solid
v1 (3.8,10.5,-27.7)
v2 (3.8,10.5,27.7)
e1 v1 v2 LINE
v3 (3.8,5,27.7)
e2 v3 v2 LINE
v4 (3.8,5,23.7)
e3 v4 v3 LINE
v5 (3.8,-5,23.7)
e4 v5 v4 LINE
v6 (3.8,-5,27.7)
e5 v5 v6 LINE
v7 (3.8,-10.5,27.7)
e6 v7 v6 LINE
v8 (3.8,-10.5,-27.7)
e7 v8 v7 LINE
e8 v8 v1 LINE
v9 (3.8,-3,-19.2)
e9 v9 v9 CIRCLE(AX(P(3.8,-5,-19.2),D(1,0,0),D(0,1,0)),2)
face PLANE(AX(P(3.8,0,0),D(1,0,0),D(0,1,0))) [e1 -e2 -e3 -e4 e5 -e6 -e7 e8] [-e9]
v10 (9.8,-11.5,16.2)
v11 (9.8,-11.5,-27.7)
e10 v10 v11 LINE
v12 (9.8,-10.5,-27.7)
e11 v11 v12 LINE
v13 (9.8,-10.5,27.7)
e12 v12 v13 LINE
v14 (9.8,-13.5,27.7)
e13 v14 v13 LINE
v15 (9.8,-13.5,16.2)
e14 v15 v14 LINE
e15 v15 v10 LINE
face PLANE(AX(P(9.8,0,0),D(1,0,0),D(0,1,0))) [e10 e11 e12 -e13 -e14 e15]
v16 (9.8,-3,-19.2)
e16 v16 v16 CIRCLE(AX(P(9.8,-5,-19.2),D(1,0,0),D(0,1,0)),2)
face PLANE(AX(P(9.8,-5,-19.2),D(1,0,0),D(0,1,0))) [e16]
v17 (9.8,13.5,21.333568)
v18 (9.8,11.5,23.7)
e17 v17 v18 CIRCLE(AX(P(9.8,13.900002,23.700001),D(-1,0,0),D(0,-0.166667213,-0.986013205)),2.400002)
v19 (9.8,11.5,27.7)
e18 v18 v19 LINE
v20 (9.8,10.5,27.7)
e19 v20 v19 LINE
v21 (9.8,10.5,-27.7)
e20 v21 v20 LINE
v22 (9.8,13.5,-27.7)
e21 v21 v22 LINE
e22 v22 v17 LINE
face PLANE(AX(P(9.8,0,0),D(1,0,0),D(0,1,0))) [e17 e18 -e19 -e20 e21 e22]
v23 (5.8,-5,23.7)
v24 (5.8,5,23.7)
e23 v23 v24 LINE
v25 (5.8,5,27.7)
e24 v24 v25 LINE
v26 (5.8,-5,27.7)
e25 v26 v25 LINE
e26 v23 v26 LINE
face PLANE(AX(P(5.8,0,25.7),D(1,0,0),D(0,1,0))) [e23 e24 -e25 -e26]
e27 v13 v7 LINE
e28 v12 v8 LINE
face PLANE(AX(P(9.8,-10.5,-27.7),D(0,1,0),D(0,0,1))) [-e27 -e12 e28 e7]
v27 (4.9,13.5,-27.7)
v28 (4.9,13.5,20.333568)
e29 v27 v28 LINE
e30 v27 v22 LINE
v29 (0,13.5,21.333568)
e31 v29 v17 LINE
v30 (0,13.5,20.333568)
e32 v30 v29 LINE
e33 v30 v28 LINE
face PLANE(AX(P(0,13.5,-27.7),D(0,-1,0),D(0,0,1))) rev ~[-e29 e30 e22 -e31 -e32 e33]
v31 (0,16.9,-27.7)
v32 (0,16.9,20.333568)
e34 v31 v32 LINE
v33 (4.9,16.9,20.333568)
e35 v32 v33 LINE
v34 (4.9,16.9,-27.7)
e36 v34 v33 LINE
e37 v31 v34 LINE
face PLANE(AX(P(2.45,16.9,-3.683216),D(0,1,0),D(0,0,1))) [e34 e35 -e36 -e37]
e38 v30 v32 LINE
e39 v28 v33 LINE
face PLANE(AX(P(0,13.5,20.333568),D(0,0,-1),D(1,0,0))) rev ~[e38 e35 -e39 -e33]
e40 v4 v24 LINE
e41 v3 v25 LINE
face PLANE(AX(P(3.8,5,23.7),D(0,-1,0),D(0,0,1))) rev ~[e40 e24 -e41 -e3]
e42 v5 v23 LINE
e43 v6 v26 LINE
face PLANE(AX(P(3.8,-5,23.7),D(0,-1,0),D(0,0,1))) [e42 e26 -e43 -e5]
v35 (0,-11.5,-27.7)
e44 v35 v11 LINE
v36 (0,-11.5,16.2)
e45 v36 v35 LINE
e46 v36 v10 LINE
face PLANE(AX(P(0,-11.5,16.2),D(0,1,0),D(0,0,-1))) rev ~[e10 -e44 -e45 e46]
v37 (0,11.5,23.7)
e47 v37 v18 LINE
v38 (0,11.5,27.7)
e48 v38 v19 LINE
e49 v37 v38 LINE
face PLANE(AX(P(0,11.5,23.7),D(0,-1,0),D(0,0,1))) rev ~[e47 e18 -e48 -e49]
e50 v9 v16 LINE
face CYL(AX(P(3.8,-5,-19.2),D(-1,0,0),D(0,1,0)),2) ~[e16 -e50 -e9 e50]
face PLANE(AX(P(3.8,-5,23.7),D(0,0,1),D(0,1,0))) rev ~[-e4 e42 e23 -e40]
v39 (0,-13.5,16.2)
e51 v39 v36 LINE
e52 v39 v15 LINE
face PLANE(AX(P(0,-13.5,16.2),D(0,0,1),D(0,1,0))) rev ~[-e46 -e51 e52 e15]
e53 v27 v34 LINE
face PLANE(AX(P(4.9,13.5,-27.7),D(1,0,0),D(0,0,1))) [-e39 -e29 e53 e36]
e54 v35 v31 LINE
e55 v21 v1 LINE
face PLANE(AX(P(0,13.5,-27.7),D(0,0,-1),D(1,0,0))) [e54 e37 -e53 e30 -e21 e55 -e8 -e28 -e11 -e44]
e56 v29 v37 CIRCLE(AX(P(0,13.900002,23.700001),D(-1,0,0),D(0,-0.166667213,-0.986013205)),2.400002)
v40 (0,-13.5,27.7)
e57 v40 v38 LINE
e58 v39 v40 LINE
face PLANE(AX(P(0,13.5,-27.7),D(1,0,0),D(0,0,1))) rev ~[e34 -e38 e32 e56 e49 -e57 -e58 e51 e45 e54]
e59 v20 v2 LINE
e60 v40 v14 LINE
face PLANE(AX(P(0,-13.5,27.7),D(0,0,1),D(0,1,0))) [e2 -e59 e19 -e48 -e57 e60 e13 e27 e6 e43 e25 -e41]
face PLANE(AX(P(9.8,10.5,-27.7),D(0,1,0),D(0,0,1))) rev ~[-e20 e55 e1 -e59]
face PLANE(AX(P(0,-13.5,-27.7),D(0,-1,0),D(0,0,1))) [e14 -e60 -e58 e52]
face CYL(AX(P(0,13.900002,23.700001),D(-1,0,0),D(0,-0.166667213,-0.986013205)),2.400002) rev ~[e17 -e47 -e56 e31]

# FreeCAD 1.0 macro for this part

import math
import FreeCAD as App
import Part
import Sketcher


def add_polygon(sketch, points):
    """Adds a closed chain of lines whose ends are joined by coincident constraints."""
    first, n = sketch.GeometryCount, len(points)
    for a, b in zip(points, points[1:] + points[:1]):
        sketch.addGeometry(Part.LineSegment(App.Vector(*a, 0), App.Vector(*b, 0)), False)
    for i in range(n):
        sketch.addConstraint(Sketcher.Constraint("Coincident", first + i, 2, first + (i + 1) % n, 1))

doc = App.newDocument("Part")
body = doc.addObject("PartDesign::Body", "Body")

sketch1 = body.newObject("Sketcher::SketchObject", "Sketch")
sketch1.AttachmentSupport = (doc.getObject("YZ_Plane"), [""])
sketch1.MapMode = "FlatFace"
add_polygon(sketch1, [(-13.5, 27.7), (-13.5, -27.7), (13.5, -27.7), (13.5, 27.7)])
sketch1.addConstraint([
    Sketcher.Constraint("Vertical", 0),
    Sketcher.Constraint("Horizontal", 1),
    Sketcher.Constraint("Vertical", 2),
    Sketcher.Constraint("Horizontal", 3),
    Sketcher.Constraint("Symmetric", 0, 2, 2, 2, -1, 1),
    Sketcher.Constraint("DistanceX", 1, 1, 1, 2, 27.0),
    Sketcher.Constraint("DistanceY", 0, 2, 0, 1, 55.4),
])
pad1 = body.newObject("PartDesign::Pad", "Pad")
pad1.Profile = sketch1
pad1.Length = 9.8

sketch2 = body.newObject("Sketcher::SketchObject", "Sketch001")
sketch2.AttachmentSupport = (doc.getObject("YZ_Plane"), [""])
sketch2.MapMode = "FlatFace"
sketch2.AttachmentOffset = App.Placement(App.Vector(0, 0, 9.8), App.Rotation())
add_polygon(sketch2, [(-10.5, 27.7), (-10.5, -27.7), (10.5, -27.7), (10.5, 27.7)])
sketch2.addConstraint([
    Sketcher.Constraint("Vertical", 0),
    Sketcher.Constraint("Horizontal", 1),
    Sketcher.Constraint("Vertical", 2),
    Sketcher.Constraint("Horizontal", 3),
    Sketcher.Constraint("Symmetric", 0, 2, 2, 2, -1, 1),
    Sketcher.Constraint("DistanceX", 1, 1, 1, 2, 21.0),
    Sketcher.Constraint("DistanceY", 0, 2, 0, 1, 55.4),
])
pocket1 = body.newObject("PartDesign::Pocket", "Pocket")
pocket1.Profile = sketch2
pocket1.Length = 6

sketch3 = body.newObject("Sketcher::SketchObject", "Sketch002")
sketch3.AttachmentSupport = (doc.getObject("YZ_Plane"), [""])
sketch3.MapMode = "FlatFace"
sketch3.AttachmentOffset = App.Placement(App.Vector(0, 0, 3.8), App.Rotation())
add_polygon(sketch3, [(-5, 27.7), (-5, 23.7), (5, 23.7), (5, 27.7)])
sketch3.addConstraint([
    Sketcher.Constraint("Vertical", 0),
    Sketcher.Constraint("Horizontal", 1),
    Sketcher.Constraint("Vertical", 2),
    Sketcher.Constraint("Horizontal", 3),
    Sketcher.Constraint("DistanceX", 1, 1, 1, 2, 10.0),
    Sketcher.Constraint("DistanceY", 0, 2, 0, 1, 4.0),
    Sketcher.Constraint("DistanceX", 0, 2, -1, 1, 5.0),
    Sketcher.Constraint("DistanceY", -1, 1, 0, 2, 23.7),
])
pad2 = body.newObject("PartDesign::Pad", "Pad001")
pad2.Profile = sketch3
pad2.Length = 2

sketch4 = body.newObject("Sketcher::SketchObject", "Sketch003")
sketch4.AttachmentSupport = (doc.getObject("YZ_Plane"), [""])
sketch4.MapMode = "FlatFace"
sketch4.AttachmentOffset = App.Placement(App.Vector(0, 0, 3.8), App.Rotation())
sketch4.addGeometry(Part.Circle(App.Vector(-5, -19.2, 0), App.Vector(0, 0, 1), 2), False)
sketch4.addConstraint([
    Sketcher.Constraint("Diameter", 0, 4.0),
    Sketcher.Constraint("DistanceX", 0, 3, -1, 1, 5.0),
    Sketcher.Constraint("DistanceY", 0, 3, -1, 1, 19.2),
])
pad3 = body.newObject("PartDesign::Pad", "Pad002")
pad3.Profile = sketch4
pad3.Length = 6

sketch5 = body.newObject("Sketcher::SketchObject", "Sketch004")
sketch5.AttachmentSupport = (doc.getObject("YZ_Plane"), [""])
sketch5.MapMode = "FlatFace"
add_polygon(sketch5, [(-13.5, -27.7), (-13.5, 16.2), (-11.5, 16.2), (-11.5, -27.7)])
sketch5.addGeometry(Part.ArcOfCircle(Part.Circle(App.Vector(13.900002, 23.700001, 0), App.Vector(0, 0, 1), 2.400002), math.radians(-179.99997), math.radians(-99.5941)), False)
sketch5.addGeometry(Part.LineSegment(App.Vector(11.5, 23.7, 0), App.Vector(11.5, 27.7, 0)), False)
sketch5.addGeometry(Part.LineSegment(App.Vector(11.5, 27.7, 0), App.Vector(13.5, 27.7, 0)), False)
sketch5.addGeometry(Part.LineSegment(App.Vector(13.5, 27.7, 0), App.Vector(13.5, 21.333568, 0)), False)
sketch5.addConstraint([
    Sketcher.Constraint("Tangent", 4, 1, 5, 1),
    Sketcher.Constraint("Coincident", 5, 2, 6, 1),
    Sketcher.Constraint("Coincident", 6, 2, 7, 1),
    Sketcher.Constraint("Coincident", 7, 2, 4, 2),
    Sketcher.Constraint("Vertical", 0),
    Sketcher.Constraint("Horizontal", 1),
    Sketcher.Constraint("Vertical", 2),
    Sketcher.Constraint("Horizontal", 3),
    Sketcher.Constraint("Vertical", 5),
    Sketcher.Constraint("Horizontal", 6),
    Sketcher.Constraint("Vertical", 7),
    Sketcher.Constraint("Symmetric", 2, 2, 5, 2, -1, 1),
    Sketcher.Constraint("Equal", 3, 6),
    Sketcher.Constraint("Radius", 4, 2.400002),
    Sketcher.Constraint("DistanceX", 1, 1, 1, 2, 2.0),
    Sketcher.Constraint("DistanceY", 5, 1, 5, 2, 4.0),
    Sketcher.Constraint("DistanceY", 0, 1, 0, 2, 43.9),
    Sketcher.Constraint("DistanceX", 1, 2, 4, 1, 23.0),
    Sketcher.Constraint("DistanceY", -1, 1, 4, 3, 23.700001),
])
pocket2 = body.newObject("PartDesign::Pocket", "Pocket001")
pocket2.Profile = sketch5
pocket2.Length = 9.8
pocket2.Reversed = True

sketch6 = body.newObject("Sketcher::SketchObject", "Sketch005")
sketch6.AttachmentSupport = (doc.getObject("XZ_Plane"), [""])
sketch6.MapMode = "FlatFace"
sketch6.AttachmentOffset = App.Placement(App.Vector(0, 0, -13.5), App.Rotation())
add_polygon(sketch6, [(4.9, -27.7), (0, -27.7), (0, 20.333568), (4.9, 20.333568)])
sketch6.addConstraint([
    Sketcher.Constraint("Horizontal", 0),
    Sketcher.Constraint("Vertical", 1),
    Sketcher.Constraint("Horizontal", 2),
    Sketcher.Constraint("Vertical", 3),
    Sketcher.Constraint("PointOnObject", 0, 2, -2),
    Sketcher.Constraint("DistanceX", 0, 2, 0, 1, 4.9),
    Sketcher.Constraint("DistanceY", 0, 2, -1, 1, 27.7),
    Sketcher.Constraint("DistanceY", 1, 1, 1, 2, 48.033568),
])
pad4 = body.newObject("PartDesign::Pad", "Pad003")
pad4.Profile = sketch6
pad4.Length = 3.4
pad4.Reversed = True

doc.recompute()
